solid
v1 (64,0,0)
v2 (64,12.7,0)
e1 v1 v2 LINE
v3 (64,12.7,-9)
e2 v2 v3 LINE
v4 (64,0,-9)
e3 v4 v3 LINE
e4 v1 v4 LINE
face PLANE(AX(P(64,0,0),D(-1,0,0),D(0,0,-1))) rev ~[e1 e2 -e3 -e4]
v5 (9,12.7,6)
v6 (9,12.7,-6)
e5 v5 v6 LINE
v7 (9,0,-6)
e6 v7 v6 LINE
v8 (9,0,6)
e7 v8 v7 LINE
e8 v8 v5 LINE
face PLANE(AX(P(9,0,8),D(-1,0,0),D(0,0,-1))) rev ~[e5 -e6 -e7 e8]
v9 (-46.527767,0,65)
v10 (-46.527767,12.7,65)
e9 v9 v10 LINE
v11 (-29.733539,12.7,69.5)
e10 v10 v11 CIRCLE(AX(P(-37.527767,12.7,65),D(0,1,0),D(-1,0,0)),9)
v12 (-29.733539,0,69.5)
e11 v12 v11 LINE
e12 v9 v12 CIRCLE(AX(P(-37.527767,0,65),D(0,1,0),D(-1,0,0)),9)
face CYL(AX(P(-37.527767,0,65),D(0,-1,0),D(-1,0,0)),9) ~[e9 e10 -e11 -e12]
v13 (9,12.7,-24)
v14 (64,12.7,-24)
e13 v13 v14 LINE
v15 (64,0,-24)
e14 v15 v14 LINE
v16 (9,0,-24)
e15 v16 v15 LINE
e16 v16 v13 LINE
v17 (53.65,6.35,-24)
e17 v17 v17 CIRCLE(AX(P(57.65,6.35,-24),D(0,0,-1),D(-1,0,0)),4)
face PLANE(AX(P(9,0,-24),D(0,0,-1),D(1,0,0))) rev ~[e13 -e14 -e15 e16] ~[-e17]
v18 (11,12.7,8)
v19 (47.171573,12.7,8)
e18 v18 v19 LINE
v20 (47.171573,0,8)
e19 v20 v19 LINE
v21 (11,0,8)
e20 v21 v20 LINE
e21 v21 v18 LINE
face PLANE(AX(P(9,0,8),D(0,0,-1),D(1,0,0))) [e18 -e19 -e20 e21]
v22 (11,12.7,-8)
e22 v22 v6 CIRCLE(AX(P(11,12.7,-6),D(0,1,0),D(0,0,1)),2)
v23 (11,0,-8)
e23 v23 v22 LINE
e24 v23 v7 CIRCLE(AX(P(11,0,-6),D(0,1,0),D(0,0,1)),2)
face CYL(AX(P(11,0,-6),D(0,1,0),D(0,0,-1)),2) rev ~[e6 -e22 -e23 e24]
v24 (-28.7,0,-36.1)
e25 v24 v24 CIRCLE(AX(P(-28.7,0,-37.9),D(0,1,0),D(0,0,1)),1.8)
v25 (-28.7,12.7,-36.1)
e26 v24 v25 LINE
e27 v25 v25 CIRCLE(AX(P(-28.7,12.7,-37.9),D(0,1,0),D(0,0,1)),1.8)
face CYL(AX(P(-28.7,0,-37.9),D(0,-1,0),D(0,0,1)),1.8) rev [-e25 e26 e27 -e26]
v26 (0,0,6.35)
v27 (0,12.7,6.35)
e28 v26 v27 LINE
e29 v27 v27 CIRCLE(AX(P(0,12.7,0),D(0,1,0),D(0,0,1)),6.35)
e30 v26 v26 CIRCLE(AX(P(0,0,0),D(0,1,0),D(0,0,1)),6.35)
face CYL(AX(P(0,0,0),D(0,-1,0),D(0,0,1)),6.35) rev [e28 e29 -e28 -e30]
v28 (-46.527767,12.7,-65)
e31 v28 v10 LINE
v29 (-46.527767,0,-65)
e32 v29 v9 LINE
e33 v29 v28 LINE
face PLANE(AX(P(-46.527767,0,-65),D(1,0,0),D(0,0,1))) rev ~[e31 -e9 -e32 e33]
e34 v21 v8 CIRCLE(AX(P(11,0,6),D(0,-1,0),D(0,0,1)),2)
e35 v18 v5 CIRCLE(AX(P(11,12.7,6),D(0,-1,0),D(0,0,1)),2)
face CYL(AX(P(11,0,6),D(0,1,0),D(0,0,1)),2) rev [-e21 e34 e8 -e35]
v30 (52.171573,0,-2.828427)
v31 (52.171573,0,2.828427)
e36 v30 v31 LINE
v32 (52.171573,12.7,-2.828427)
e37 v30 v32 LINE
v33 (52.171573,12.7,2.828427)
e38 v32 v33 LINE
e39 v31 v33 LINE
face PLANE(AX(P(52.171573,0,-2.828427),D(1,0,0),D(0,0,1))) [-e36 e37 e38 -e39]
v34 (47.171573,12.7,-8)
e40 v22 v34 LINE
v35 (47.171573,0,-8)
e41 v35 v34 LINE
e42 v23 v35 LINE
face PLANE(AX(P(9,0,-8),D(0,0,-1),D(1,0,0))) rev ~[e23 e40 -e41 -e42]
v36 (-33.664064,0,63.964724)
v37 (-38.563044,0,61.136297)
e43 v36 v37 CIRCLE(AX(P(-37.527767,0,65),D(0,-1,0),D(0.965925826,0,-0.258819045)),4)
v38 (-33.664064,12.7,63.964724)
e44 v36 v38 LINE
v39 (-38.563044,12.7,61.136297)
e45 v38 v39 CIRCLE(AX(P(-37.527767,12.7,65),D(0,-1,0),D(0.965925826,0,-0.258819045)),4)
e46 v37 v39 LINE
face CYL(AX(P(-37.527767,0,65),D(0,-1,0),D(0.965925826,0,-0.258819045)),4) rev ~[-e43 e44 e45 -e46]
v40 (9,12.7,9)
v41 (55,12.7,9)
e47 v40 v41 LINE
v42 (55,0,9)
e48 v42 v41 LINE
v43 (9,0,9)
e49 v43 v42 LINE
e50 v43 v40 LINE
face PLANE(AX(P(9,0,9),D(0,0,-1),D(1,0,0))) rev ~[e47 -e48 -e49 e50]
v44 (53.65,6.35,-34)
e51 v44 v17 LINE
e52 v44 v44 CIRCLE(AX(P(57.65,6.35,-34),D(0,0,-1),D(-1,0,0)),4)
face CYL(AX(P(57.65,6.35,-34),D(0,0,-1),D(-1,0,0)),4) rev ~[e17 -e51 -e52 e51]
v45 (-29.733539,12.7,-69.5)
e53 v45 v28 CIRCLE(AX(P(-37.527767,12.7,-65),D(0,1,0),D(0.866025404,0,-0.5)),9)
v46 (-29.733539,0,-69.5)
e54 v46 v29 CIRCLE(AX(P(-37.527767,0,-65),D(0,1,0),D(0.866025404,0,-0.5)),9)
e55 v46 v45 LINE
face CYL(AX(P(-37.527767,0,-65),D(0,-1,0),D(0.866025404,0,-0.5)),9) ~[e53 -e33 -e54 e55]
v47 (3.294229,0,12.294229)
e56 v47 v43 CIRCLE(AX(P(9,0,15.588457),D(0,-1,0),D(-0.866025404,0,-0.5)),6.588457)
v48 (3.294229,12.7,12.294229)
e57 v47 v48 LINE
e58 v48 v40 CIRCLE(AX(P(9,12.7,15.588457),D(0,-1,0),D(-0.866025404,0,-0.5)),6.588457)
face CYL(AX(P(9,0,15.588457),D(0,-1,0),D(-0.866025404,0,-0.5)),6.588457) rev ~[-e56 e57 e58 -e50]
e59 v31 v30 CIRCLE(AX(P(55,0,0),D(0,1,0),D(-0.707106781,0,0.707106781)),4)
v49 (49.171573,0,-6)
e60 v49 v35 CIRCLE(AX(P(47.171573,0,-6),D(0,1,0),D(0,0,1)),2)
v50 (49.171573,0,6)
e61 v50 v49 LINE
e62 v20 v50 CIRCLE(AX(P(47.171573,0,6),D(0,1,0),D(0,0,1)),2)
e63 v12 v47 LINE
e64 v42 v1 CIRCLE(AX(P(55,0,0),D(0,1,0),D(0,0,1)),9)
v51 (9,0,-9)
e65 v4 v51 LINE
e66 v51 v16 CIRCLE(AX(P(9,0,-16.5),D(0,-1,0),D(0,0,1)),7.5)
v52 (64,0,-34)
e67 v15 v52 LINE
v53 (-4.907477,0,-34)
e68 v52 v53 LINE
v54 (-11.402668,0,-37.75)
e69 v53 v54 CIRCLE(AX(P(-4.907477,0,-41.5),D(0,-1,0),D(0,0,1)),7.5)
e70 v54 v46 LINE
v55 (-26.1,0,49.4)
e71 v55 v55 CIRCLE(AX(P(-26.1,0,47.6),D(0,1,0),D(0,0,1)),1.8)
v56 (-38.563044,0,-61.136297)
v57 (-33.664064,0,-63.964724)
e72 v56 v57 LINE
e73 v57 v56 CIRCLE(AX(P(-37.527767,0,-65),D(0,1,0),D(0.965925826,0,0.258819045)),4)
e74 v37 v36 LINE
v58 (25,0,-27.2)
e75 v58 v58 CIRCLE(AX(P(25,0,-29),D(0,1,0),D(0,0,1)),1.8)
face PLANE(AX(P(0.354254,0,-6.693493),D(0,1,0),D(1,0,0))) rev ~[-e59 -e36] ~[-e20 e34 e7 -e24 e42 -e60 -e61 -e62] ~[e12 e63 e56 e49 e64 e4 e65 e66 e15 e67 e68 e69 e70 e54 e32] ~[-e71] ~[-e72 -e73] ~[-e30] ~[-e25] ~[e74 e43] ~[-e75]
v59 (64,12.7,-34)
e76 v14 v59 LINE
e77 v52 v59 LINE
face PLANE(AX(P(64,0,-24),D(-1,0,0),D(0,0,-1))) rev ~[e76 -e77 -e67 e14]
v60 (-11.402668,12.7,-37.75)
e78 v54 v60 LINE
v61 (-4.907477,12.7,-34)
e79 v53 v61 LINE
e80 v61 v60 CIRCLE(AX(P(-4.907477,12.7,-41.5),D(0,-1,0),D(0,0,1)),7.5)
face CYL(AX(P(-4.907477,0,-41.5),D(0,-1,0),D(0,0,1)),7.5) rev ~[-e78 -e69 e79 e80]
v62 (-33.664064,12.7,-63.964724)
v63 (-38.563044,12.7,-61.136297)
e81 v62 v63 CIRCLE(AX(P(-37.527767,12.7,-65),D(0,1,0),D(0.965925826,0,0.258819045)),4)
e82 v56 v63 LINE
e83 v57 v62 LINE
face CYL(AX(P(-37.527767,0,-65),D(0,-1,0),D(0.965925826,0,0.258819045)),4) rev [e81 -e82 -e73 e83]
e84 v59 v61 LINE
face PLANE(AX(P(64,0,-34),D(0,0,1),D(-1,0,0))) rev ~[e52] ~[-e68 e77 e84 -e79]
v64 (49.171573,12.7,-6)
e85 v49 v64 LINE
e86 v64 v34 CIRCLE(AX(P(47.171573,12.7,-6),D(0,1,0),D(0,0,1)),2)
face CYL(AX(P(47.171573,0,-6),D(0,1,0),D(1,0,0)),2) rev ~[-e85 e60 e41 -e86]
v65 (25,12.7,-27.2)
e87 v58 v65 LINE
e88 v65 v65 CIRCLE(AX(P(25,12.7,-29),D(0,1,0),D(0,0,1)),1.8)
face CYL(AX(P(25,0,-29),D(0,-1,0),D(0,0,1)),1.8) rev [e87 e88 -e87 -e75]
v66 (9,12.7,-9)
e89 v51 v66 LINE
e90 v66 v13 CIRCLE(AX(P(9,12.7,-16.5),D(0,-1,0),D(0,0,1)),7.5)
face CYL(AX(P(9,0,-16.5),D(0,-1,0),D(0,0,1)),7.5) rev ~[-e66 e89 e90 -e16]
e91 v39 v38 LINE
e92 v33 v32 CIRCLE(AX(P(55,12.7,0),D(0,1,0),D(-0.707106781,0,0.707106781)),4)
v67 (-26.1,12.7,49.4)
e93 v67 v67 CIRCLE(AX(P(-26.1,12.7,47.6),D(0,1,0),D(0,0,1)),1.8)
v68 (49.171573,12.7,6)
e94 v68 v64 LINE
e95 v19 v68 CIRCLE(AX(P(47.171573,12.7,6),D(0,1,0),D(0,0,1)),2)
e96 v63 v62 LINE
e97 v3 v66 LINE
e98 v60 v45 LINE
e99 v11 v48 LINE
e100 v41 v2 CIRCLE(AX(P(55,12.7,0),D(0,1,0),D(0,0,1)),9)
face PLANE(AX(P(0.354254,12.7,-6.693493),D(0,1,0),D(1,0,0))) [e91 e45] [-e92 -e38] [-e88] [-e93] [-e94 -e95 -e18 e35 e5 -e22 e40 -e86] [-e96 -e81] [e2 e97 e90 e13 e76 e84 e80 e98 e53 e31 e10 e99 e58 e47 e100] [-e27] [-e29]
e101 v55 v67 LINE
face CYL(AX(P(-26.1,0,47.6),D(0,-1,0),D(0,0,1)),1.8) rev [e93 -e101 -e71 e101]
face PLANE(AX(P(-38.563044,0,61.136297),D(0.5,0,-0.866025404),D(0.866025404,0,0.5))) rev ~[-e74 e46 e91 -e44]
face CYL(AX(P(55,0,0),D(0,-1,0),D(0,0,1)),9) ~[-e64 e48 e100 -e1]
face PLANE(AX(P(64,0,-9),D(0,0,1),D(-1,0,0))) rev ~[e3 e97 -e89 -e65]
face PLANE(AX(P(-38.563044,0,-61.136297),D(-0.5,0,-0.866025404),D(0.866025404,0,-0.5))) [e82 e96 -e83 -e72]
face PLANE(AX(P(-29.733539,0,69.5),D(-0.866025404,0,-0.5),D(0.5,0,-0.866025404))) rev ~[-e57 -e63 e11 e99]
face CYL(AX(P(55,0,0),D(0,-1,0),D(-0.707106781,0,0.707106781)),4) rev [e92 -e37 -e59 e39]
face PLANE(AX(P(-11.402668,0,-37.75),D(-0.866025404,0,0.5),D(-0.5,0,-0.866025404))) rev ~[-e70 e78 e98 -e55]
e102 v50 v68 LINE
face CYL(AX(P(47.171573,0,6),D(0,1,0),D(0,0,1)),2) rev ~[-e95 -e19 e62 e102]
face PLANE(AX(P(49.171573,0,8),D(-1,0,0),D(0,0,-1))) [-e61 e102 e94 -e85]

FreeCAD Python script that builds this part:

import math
import FreeCAD as App
import Part
import Sketcher
Q = App.Units.Quantity


def edges_at(feature, points):
    """Names of the edges that pass closest to the given points."""
    edges = feature.Shape.Edges
    near = lambda p: min(range(len(edges)), key=lambda i: edges[i].distToShape(Part.Vertex(*p))[0])
    return sorted({f"Edge{near(p) + 1}" for p in points})

doc = App.newDocument("Part")
params = doc.addObject("Spreadsheet::Sheet", "Params")
for row, (alias, value) in enumerate([
    ("sketch1_radius", "9 mm"),
    ("sketch1_radius2", "4 mm"),
    ("sketch1_diameter", "3.6 mm"),
    ("sketch1_diameter2", "12.7 mm"),
    ("sketch1_radius3", "7.5 mm"),
    ("pad1_length", "12.7 mm"),
    ("fillet_radius", "2 mm"),
    ("sketch2_diameter", "8 mm"),
], start=1):
    params.set(f"A{row}", alias)
    params.set(f"B{row}", "=" + value)
    params.setAlias(f"B{row}", alias)

body = doc.addObject("PartDesign::Body", "Body")

# Sketch on XZ plane
sketch1 = body.newObject("Sketcher::SketchObject", "Sketch")
sketch1.AttachmentSupport = (doc.getObject("XZ_Plane"), [""])
sketch1.MapMode = "FlatFace"
sketch1.addGeometry([
    Part.LineSegment(App.Vector(64, 0, 0), App.Vector(64, -9, 0)),  # 0
    Part.LineSegment(App.Vector(64, -9, 0), App.Vector(9, -9, 0)),  # 1
    Part.ArcOfCircle(Part.Circle(App.Vector(9, -16.5, 0), App.Vector(0, 0, 1), 7.5), math.radians(90), math.radians(270)),  # 2
    Part.LineSegment(App.Vector(9, -24, 0), App.Vector(64, -24, 0)),  # 3
    Part.LineSegment(App.Vector(64, -24, 0), App.Vector(64, -34, 0)),  # 4
    Part.LineSegment(App.Vector(64, -34, 0), App.Vector(-4.9, -34, 0)),  # 5
    Part.ArcOfCircle(Part.Circle(App.Vector(-4.9, -41.5, 0), App.Vector(0, 0, 1), 7.5), math.radians(90), math.radians(150)),  # 6
    Part.LineSegment(App.Vector(-11.4, -37.8, 0), App.Vector(-29.7, -69.5, 0)),  # 7
    Part.ArcOfCircle(Part.Circle(App.Vector(-37.5, -65, 0), App.Vector(0, 0, 1), 9), math.radians(180), math.radians(330)),  # 8
    Part.LineSegment(App.Vector(-46.5, -65, 0), App.Vector(-46.5, 65, 0)),  # 9
    Part.ArcOfCircle(Part.Circle(App.Vector(-37.5, 65, 0), App.Vector(0, 0, 1), 9), math.radians(30), math.radians(180)),  # 10
    Part.LineSegment(App.Vector(-29.7, 69.5, 0), App.Vector(3.3, 12.3, 0)),  # 11
    Part.ArcOfCircle(Part.Circle(App.Vector(9, 15.6, 0), App.Vector(0, 0, 1), 6.6), math.radians(-150), math.radians(-90)),  # 12
    Part.LineSegment(App.Vector(9, 9, 0), App.Vector(55, 9, 0)),  # 13
    Part.ArcOfCircle(Part.Circle(App.Vector(55, 0, 0), App.Vector(0, 0, 1), 9), math.radians(0), math.radians(90)),  # 14
    Part.ArcOfCircle(Part.Circle(App.Vector(-37.5, 65, 0), App.Vector(0, 0, 1), 4), math.radians(-15), math.radians(255)),  # 15
    Part.LineSegment(App.Vector(-38.6, 61.1, 0), App.Vector(-33.7, 64, 0)),  # 16
    Part.Circle(App.Vector(-26.1, 47.6, 0), App.Vector(0, 0, 1), 1.8),  # 17
    Part.Circle(App.Vector(0, 0, 0), App.Vector(0, 0, 1), 6.3),  # 18
    Part.Circle(App.Vector(-28.7, -37.9, 0), App.Vector(0, 0, 1), 1.8),  # 19
    Part.LineSegment(App.Vector(-33.7, -64, 0), App.Vector(-38.6, -61.1, 0)),  # 20
    Part.ArcOfCircle(Part.Circle(App.Vector(-37.5, -65, 0), App.Vector(0, 0, 1), 4), math.radians(105), math.radians(375)),  # 21
    Part.LineSegment(App.Vector(49.2, 8, 0), App.Vector(9, 8, 0)),  # 22
    Part.LineSegment(App.Vector(9, 8, 0), App.Vector(9, -8, 0)),  # 23
    Part.LineSegment(App.Vector(9, -8, 0), App.Vector(49.2, -8, 0)),  # 24
    Part.LineSegment(App.Vector(49.2, -8, 0), App.Vector(49.2, 8, 0)),  # 25
    Part.Circle(App.Vector(25, -29, 0), App.Vector(0, 0, 1), 1.8),  # 26
    Part.LineSegment(App.Vector(52.2, 2.8, 0), App.Vector(52.2, -2.8, 0)),  # 27
    Part.ArcOfCircle(Part.Circle(App.Vector(55, 0, 0), App.Vector(0, 0, 1), 4), math.radians(-135), math.radians(135)),  # 28
], False)
sketch1.addConstraint([
    Sketcher.Constraint("Coincident", 0, 2, 1, 1),
    Sketcher.Constraint("Tangent", 1, 2, 2, 1),
    Sketcher.Constraint("Tangent", 2, 2, 3, 1),
    Sketcher.Constraint("Coincident", 3, 2, 4, 1),
    Sketcher.Constraint("Coincident", 4, 2, 5, 1),
    Sketcher.Constraint("Tangent", 5, 2, 6, 1),
    Sketcher.Constraint("Tangent", 6, 2, 7, 1),
    Sketcher.Constraint("Tangent", 7, 2, 8, 2),
    Sketcher.Constraint("Tangent", 8, 1, 9, 1),
    Sketcher.Constraint("Tangent", 9, 2, 10, 2),
    Sketcher.Constraint("Tangent", 10, 1, 11, 1),
    Sketcher.Constraint("Tangent", 11, 2, 12, 1),
    Sketcher.Constraint("Tangent", 12, 2, 13, 1),
    Sketcher.Constraint("Tangent", 13, 2, 14, 2),
    Sketcher.Constraint("Tangent", 14, 1, 0, 1),
    Sketcher.Constraint("Coincident", 15, 1, 16, 2),
    Sketcher.Constraint("Coincident", 16, 1, 15, 2),
    Sketcher.Constraint("Coincident", 20, 1, 21, 2),
    Sketcher.Constraint("Coincident", 21, 1, 20, 2),
    Sketcher.Constraint("Coincident", 22, 2, 23, 1),
    Sketcher.Constraint("Coincident", 23, 2, 24, 1),
    Sketcher.Constraint("Coincident", 24, 2, 25, 1),
    Sketcher.Constraint("Coincident", 25, 2, 22, 1),
    Sketcher.Constraint("Coincident", 27, 1, 28, 2),
    Sketcher.Constraint("Coincident", 28, 1, 27, 2),
    Sketcher.Constraint("Vertical", 0),
    Sketcher.Constraint("Horizontal", 1),
    Sketcher.Constraint("Horizontal", 3),
    Sketcher.Constraint("Vertical", 4),
    Sketcher.Constraint("Horizontal", 5),
    Sketcher.Constraint("Vertical", 9),
    Sketcher.Constraint("Horizontal", 13),
    Sketcher.Constraint("Horizontal", 22),
    Sketcher.Constraint("Vertical", 23),
    Sketcher.Constraint("Horizontal", 24),
    Sketcher.Constraint("Vertical", 25),
    Sketcher.Constraint("Vertical", 27),
    Sketcher.Constraint("Coincident", 18, 3, -1, 1),
    Sketcher.Constraint("Coincident", 15, 3, 10, 3),
    Sketcher.Constraint("Coincident", 21, 3, 8, 3),
    Sketcher.Constraint("Coincident", 28, 3, 14, 3),
    Sketcher.Constraint("Equal", 2, 6),
    Sketcher.Constraint("Equal", 8, 10),
    Sketcher.Constraint("Equal", 10, 14),
    Sketcher.Constraint("Equal", 17, 19),
    Sketcher.Constraint("Equal", 15, 21),
    Sketcher.Constraint("Equal", 19, 26),
    Sketcher.Constraint("Equal", 21, 28),
    Sketcher.Constraint("Symmetric", 7, 2, 10, 1, -1),
    Sketcher.Constraint("Symmetric", 1, 2, 12, 2, -1),
    Sketcher.Constraint("PointOnObject", 14, 3, -1),
    Sketcher.Constraint("Perpendicular", 11, 16),
    Sketcher.Constraint("Perpendicular", 7, 20),
    Sketcher.Constraint("Vertical", 0, 2, 3, 2),
    Sketcher.Constraint("Vertical", 15, 1, 20, 1),
    Sketcher.Constraint("Vertical", 12, 2, 22, 2),
    Sketcher.Constraint("Radius", 8, 9.0),
    Sketcher.Constraint("Radius", 15, 4.0),
    Sketcher.Constraint("Diameter", 17, 3.6),
    Sketcher.Constraint("Diameter", 18, 12.7),
    Sketcher.Constraint("Radius", 2, 7.5),
    Sketcher.Constraint("DistanceX", 1, 2, 1, 1, 55.0),
    Sketcher.Constraint("DistanceY", 4, 2, 4, 1, 10.0),
    Sketcher.Constraint("DistanceY", 9, 1, 9, 2, 130.0),
    Sketcher.Constraint("DistanceY", 23, 2, 23, 1, 16.0),
    Sketcher.Constraint("Angle", 7, Q("-120 deg")),
    Sketcher.Constraint("DistanceX", -1, 1, 2, 3, 9.0),
    Sketcher.Constraint("DistanceX", -1, 1, 26, 3, 25.0),
    Sketcher.Constraint("DistanceY", 26, 3, -1, 1, 29.0),
    Sketcher.Constraint("DistanceY", -1, 1, 22, 2, 8.0),
    Sketcher.Constraint("DistanceX", 25, 2, 27, 1, 3.0),
    Sketcher.Constraint("DistanceX", 17, 3, -1, 1, 26.1),
    Sketcher.Constraint("DistanceY", -1, 1, 17, 3, 47.6),
    Sketcher.Constraint("DistanceX", 19, 3, -1, 1, 28.7),
    Sketcher.Constraint("DistanceY", 19, 3, -1, 1, 37.9),
    Sketcher.Constraint("Radius", 12, 6.588457),
    Sketcher.Constraint("DistanceX", 22, 2, 22, 1, 40.171573),
    Sketcher.Constraint("DistanceX", 16, 1, 15, 1, 4.898979),
])
sketch1.setExpression("Constraints[56]", "Params.sketch1_radius")
sketch1.setExpression("Constraints[57]", "Params.sketch1_radius2")
sketch1.setExpression("Constraints[58]", "Params.sketch1_diameter")
sketch1.setExpression("Constraints[59]", "Params.sketch1_diameter2")
sketch1.setExpression("Constraints[60]", "Params.sketch1_radius3")
pad1 = body.newObject("PartDesign::Pad", "Pad")
pad1.Profile = sketch1
pad1.setExpression("Length", "Params.pad1_length")
pad1.Reversed = True
doc.recompute()

fillet = body.newObject("PartDesign::Fillet", "Fillet")
fillet.Base = (pad1, edges_at(pad1, [
    (9, 6.35, -8),
    (9, 6.35, 8),
    (49.172, 6.35, 8),
    (49.172, 6.35, -8),
]))
fillet.setExpression("Radius", "Params.fillet_radius")

# Sketch on XY plane
sketch2 = body.newObject("Sketcher::SketchObject", "Sketch001")
sketch2.AttachmentSupport = (doc.getObject("XY_Plane"), [""])
sketch2.MapMode = "FlatFace"
sketch2.AttachmentOffset = App.Placement(App.Vector(0, 0, -34), App.Rotation())
sketch2.addGeometry(Part.Circle(App.Vector(57.6, 6.3, 0), App.Vector(0, 0, 1), 4), False)
sketch2.addConstraint([
    Sketcher.Constraint("Diameter", 0, 8.0),
    Sketcher.Constraint("DistanceX", -1, 1, 0, 3, 57.65),
    Sketcher.Constraint("DistanceY", -1, 1, 0, 3, 6.35),
])
sketch2.setExpression("Constraints[0]", "Params.sketch2_diameter")
pocket1 = body.newObject("PartDesign::Pocket", "Pocket")
pocket1.Profile = sketch2
pocket1.Type = "UpToFirst"
pocket1.Reversed = True

doc.recompute()
